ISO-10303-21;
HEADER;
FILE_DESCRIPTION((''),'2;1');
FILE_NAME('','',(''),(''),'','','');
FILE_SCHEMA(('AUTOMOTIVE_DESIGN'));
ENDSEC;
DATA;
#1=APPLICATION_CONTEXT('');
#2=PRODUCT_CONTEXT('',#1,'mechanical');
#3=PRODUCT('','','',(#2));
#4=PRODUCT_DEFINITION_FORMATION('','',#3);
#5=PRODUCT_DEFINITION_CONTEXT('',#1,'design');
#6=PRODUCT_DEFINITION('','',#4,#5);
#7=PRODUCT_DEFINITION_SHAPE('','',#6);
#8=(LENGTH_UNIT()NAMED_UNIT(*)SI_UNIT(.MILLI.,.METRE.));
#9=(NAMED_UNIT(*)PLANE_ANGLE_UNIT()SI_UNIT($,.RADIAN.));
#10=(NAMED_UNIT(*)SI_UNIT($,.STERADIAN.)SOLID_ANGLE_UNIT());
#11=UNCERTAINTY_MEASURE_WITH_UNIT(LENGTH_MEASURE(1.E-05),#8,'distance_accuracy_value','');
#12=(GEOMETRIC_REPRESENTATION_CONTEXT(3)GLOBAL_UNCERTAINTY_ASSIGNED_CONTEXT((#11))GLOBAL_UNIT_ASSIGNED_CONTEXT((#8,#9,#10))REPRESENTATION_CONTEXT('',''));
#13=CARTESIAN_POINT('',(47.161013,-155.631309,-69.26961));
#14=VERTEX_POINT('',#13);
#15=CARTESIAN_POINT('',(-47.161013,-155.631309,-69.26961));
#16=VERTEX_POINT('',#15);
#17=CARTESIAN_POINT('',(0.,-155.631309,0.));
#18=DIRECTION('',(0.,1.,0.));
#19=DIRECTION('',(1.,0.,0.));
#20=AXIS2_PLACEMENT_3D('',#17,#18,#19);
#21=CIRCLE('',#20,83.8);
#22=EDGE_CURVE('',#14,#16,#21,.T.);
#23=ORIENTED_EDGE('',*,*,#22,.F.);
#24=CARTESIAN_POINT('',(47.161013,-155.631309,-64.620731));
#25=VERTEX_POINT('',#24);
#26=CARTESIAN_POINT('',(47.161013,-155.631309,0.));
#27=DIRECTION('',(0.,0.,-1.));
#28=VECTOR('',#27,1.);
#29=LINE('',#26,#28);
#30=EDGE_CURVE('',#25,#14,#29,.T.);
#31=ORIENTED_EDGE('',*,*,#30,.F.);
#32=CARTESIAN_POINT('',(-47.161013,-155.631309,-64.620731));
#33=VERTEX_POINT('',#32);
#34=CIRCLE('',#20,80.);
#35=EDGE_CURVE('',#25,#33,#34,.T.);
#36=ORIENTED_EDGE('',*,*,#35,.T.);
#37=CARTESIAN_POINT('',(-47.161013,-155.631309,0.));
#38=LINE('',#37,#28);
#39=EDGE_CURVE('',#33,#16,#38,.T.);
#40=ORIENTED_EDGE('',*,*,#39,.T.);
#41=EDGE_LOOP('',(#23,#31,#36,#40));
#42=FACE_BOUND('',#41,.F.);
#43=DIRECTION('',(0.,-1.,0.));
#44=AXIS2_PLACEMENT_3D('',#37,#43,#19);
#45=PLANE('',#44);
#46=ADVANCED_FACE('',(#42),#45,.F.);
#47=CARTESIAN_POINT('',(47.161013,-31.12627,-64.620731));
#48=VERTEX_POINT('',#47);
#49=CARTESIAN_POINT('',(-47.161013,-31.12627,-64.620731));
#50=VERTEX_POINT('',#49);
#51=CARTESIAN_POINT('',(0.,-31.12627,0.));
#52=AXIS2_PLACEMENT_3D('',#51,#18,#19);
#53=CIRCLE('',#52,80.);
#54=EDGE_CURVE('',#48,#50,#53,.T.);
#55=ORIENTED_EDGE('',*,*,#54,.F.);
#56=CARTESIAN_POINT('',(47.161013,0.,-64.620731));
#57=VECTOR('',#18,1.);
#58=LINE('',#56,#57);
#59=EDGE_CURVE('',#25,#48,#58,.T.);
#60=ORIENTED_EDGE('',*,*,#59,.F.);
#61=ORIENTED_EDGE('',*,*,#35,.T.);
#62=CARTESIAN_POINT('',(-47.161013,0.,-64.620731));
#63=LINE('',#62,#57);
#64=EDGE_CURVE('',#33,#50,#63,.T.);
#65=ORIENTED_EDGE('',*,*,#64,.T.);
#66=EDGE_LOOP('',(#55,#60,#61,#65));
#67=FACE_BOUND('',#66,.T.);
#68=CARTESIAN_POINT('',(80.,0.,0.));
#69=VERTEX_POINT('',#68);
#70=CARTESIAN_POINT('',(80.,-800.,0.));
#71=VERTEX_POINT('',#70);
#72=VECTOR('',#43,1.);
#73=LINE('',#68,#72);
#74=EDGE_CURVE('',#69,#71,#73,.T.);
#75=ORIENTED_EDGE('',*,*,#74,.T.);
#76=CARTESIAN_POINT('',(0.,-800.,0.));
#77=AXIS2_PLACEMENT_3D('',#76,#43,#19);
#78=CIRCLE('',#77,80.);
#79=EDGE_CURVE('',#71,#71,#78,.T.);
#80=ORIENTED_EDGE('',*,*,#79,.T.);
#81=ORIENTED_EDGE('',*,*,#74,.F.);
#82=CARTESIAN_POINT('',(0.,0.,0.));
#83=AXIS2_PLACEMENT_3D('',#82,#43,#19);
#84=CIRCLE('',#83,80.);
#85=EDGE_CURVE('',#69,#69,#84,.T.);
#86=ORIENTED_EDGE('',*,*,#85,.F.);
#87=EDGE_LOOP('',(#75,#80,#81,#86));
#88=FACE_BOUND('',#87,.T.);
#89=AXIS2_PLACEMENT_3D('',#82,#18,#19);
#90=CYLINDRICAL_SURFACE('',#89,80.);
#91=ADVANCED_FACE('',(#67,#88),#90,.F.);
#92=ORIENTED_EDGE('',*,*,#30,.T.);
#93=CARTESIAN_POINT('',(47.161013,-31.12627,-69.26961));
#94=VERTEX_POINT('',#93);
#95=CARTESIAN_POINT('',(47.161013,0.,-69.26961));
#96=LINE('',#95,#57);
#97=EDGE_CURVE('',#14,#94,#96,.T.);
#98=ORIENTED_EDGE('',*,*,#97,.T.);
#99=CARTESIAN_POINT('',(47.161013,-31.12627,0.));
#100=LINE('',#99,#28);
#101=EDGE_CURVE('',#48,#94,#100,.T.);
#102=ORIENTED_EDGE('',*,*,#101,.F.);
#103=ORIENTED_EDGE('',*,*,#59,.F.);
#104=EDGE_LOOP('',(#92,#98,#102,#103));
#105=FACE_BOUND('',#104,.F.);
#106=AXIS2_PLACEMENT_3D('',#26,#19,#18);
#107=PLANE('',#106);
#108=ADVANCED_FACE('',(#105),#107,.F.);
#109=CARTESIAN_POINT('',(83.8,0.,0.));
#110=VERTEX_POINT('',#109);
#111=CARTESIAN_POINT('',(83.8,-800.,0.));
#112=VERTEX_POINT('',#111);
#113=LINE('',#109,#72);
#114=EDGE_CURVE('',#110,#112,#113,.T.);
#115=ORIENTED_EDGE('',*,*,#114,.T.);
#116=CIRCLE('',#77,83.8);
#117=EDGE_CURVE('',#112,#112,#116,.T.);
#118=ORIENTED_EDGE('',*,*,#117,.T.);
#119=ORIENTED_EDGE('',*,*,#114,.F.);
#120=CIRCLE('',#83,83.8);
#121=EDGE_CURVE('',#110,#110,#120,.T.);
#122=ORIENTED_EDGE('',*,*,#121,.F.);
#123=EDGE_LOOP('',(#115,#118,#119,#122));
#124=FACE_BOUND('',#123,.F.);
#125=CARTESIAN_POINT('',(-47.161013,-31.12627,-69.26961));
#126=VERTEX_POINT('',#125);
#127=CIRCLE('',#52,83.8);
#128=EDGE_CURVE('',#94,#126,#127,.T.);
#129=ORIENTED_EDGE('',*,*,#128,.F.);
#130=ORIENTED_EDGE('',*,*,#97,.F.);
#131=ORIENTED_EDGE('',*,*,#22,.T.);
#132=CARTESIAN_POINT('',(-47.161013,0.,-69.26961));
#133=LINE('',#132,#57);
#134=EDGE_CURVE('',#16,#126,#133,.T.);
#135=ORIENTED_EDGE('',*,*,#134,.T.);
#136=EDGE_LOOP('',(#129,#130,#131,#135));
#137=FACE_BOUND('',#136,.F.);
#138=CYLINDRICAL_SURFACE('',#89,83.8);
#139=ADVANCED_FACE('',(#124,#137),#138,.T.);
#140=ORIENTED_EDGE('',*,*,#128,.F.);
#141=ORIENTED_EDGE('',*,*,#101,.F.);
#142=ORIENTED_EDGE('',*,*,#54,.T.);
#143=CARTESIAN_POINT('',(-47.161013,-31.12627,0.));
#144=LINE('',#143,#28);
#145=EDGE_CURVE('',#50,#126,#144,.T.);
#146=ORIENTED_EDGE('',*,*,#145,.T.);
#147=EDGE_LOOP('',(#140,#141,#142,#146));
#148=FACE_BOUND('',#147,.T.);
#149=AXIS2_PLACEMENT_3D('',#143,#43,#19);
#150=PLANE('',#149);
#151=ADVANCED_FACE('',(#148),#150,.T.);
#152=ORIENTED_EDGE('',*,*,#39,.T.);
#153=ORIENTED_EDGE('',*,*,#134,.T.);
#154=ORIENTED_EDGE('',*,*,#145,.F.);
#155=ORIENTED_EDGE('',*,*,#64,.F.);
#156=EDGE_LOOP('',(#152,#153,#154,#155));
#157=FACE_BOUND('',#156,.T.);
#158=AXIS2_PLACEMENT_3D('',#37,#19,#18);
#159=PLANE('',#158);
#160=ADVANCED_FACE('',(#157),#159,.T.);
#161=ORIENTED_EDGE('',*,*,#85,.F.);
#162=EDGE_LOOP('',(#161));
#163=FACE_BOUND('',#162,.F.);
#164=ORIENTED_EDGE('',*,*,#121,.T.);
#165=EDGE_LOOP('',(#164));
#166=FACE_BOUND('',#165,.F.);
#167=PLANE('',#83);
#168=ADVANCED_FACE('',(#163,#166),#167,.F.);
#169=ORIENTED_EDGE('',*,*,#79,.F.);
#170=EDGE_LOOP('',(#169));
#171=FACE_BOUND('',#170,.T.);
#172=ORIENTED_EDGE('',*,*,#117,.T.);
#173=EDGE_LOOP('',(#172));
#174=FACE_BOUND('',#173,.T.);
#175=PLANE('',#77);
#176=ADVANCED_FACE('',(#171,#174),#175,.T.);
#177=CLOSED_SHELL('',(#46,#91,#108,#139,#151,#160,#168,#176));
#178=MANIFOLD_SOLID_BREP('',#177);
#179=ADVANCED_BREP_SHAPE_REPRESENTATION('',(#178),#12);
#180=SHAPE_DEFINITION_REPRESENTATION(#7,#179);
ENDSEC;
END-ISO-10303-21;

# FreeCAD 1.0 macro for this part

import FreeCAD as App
import Part
import Sketcher

V = App.Vector
Q = App.Units.Quantity


def add_polygon(sketch, points):
    """Adds a closed chain of lines whose ends are joined by coincident constraints."""
    first, n = sketch.GeometryCount, len(points)
    for a, b in zip(points, points[1:] + points[:1]):
        sketch.addGeometry(Part.LineSegment(App.Vector(*a, 0), App.Vector(*b, 0)), False)
    for i in range(n):
        sketch.addConstraint(Sketcher.Constraint("Coincident", first + i, 2, first + (i + 1) % n, 1))

doc = App.newDocument("Part")
params = doc.addObject("Spreadsheet::Sheet", "Params")
for row, (alias, value) in enumerate([
    ("sketch1_diameter", "160 mm"),
    ("sketch1_diameter2", "167.6 mm"),
    ("pad1_length", "800 mm"),
    ("pocket1_length", "84.8 mm"),
], start=1):
    params.set(f"A{row}", alias)
    params.set(f"B{row}", "=" + value)
    params.setAlias(f"B{row}", alias)

body = doc.addObject("PartDesign::Body", "Body")

sketch1 = doc.addObject("Sketcher::SketchObject", "Sketch")
body.addObject(sketch1)
sketch1.AttachmentSupport = (doc.XZ_Plane, [""])
sketch1.MapMode = "FlatFace"
sketch1.addGeometry(Part.Circle(V(0, 0, 0), V(0, 0, 1), 83.8), False)
sketch1.addGeometry(Part.Circle(V(0, 0, 0), V(0, 0, 1), 80), False)
sketch1.addConstraint(Sketcher.Constraint("Coincident", 0, 3, -1, 1))
sketch1.addConstraint(Sketcher.Constraint("Coincident", 1, 3, -1, 1))
sketch1.addConstraint(Sketcher.Constraint("Diameter", 1, Q("160 mm")))
sketch1.addConstraint(Sketcher.Constraint("Diameter", 0, Q("167.6 mm")))
sketch1.setExpression("Constraints[2]", "Params.sketch1_diameter")
sketch1.setExpression("Constraints[3]", "Params.sketch1_diameter2")
pad1 = doc.addObject("PartDesign::Pad", "Pad")
body.addObject(pad1)
pad1.Profile = sketch1
pad1.setExpression("Length", "Params.pad1_length")

sketch2 = doc.addObject("Sketcher::SketchObject", "Sketch001")
body.addObject(sketch2)
sketch2.AttachmentSupport = (doc.XY_Plane, [""])
sketch2.MapMode = "FlatFace"
add_polygon(sketch2, [(-47.161013, -31.12627), (-47.161013, -155.631309), (47.161013, -155.631309), (47.161013, -31.12627)])
sketch2.addConstraint(Sketcher.Constraint("Vertical", 0))
sketch2.addConstraint(Sketcher.Constraint("Horizontal", 1))
sketch2.addConstraint(Sketcher.Constraint("Vertical", 2))
sketch2.addConstraint(Sketcher.Constraint("Horizontal", 3))
sketch2.addConstraint(Sketcher.Constraint("DistanceY", 0, 2, 0, 1, Q("124.505039 mm")))
sketch2.addConstraint(Sketcher.Constraint("DistanceX", 1, 1, 1, 2, Q("94.322026 mm")))
sketch2.addConstraint(Sketcher.Constraint("DistanceY", 0, 2, -1, 1, Q("155.631309 mm")))
sketch2.addConstraint(Sketcher.Constraint("DistanceX", 0, 2, -1, 1, Q("47.161013 mm")))
pocket1 = doc.addObject("PartDesign::Pocket", "Pocket")
body.addObject(pocket1)
pocket1.Profile = sketch2
pocket1.setExpression("Length", "Params.pocket1_length")

doc.recompute()
